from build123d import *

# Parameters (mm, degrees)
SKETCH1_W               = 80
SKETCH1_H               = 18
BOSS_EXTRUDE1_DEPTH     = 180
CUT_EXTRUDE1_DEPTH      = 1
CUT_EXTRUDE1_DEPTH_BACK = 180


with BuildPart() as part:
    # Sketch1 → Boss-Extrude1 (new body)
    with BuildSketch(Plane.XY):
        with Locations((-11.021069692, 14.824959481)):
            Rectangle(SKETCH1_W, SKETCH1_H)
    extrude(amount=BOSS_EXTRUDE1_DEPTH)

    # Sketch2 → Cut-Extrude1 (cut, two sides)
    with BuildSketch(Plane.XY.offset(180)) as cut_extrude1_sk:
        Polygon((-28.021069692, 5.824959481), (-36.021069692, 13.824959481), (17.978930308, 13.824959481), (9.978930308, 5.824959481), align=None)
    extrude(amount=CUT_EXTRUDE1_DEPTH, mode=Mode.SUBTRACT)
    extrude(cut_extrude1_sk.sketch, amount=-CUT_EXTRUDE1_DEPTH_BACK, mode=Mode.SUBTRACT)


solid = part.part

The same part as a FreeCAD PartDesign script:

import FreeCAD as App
import Part
import Sketcher

V = App.Vector
Q = App.Units.Quantity


def add_polygon(sketch, points):
    """Adds a closed chain of lines whose ends are joined by coincident constraints."""
    first, n = sketch.GeometryCount, len(points)
    for a, b in zip(points, points[1:] + points[:1]):
        sketch.addGeometry(Part.LineSegment(App.Vector(*a, 0), App.Vector(*b, 0)), False)
    for i in range(n):
        sketch.addConstraint(Sketcher.Constraint("Coincident", first + i, 2, first + (i + 1) % n, 1))

doc = App.newDocument("Part")
body = doc.addObject("PartDesign::Body", "Body")

sketch1 = body.newObject("Sketcher::SketchObject", "Sketch")
sketch1.AttachmentSupport = (doc.getObject("XY_Plane"), [""])
sketch1.MapMode = "FlatFace"
add_polygon(sketch1, [(-51, 24), (-51, 6), (29, 6), (29, 24)])
sketch1.addConstraint(Sketcher.Constraint("Vertical", 0))
sketch1.addConstraint(Sketcher.Constraint("Horizontal", 1))
sketch1.addConstraint(Sketcher.Constraint("Vertical", 2))
sketch1.addConstraint(Sketcher.Constraint("Horizontal", 3))
sketch1.addConstraint(Sketcher.Constraint("DistanceX", 1, 1, 1, 2, Q("80 mm")))
sketch1.addConstraint(Sketcher.Constraint("DistanceY", 0, 2, 0, 1, Q("18 mm")))
sketch1.addConstraint(Sketcher.Constraint("DistanceX", 0, 2, -1, 1, Q("51.02107 mm")))
sketch1.addConstraint(Sketcher.Constraint("DistanceY", -1, 1, 0, 2, Q("5.824959 mm")))
pad1 = body.newObject("PartDesign::Pad", "Pad")
pad1.Profile = sketch1
pad1.Length = 180

sketch2 = body.newObject("Sketcher::SketchObject", "Sketch001")
sketch2.AttachmentSupport = (doc.getObject("XY_Plane"), [""])
sketch2.MapMode = "FlatFace"
sketch2.AttachmentOffset = App.Placement(V(0, 0, 180), App.Rotation())
add_polygon(sketch2, [(-36, 14), (-28, 6), (10, 6), (18, 14)])
sketch2.addConstraint(Sketcher.Constraint("Horizontal", 1))
sketch2.addConstraint(Sketcher.Constraint("Horizontal", 3))
sketch2.addConstraint(Sketcher.Constraint("Perpendicular", 0, 2))
sketch2.addConstraint(Sketcher.Constraint("Equal", 0, 2))
sketch2.addConstraint(Sketcher.Constraint("DistanceX", 1, 1, 1, 2, Q("38 mm")))
sketch2.addConstraint(Sketcher.Constraint("DistanceX", 3, 2, 3, 1, Q("54 mm")))
sketch2.addConstraint(Sketcher.Constraint("DistanceX", 0, 2, -1, 1, Q("28.02107 mm")))
sketch2.addConstraint(Sketcher.Constraint("DistanceY", -1, 1, 0, 2, Q("5.824959 mm")))
pocket1 = body.newObject("PartDesign::Pocket", "Pocket")
pocket1.Profile = sketch2
pocket1.Type = "ThroughAll"
pocket1.Midplane = True

doc.recompute()
